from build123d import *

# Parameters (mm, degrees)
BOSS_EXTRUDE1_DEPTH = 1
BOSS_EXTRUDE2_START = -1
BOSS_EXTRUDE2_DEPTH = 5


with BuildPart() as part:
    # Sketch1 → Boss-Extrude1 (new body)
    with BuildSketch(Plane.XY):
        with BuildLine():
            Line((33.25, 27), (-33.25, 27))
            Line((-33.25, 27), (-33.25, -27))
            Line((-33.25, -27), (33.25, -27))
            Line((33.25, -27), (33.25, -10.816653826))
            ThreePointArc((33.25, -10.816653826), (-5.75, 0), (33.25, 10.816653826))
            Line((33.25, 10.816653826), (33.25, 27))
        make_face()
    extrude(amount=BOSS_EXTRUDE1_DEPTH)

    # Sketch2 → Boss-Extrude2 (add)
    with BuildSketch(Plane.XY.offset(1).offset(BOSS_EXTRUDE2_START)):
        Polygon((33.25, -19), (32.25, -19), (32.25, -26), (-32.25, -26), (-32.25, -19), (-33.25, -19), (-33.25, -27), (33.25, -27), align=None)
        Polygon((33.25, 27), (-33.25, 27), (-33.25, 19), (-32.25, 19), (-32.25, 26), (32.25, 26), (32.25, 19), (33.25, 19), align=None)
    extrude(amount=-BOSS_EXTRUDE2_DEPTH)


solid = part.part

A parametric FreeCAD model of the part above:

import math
import FreeCAD as App
import Part
import Sketcher

V = App.Vector
Q = App.Units.Quantity

doc = App.newDocument("Part")
body = doc.addObject("PartDesign::Body", "Body")

# Sketch on XY plane
sketch1 = body.newObject("Sketcher::SketchObject", "Sketch")
sketch1.AttachmentSupport = (doc.getObject("XY_Plane"), [""])
sketch1.MapMode = "FlatFace"
sketch1.addGeometry([
    Part.LineSegment(V(33, 27, 0), V(-33, 27, 0)),  # 0
    Part.LineSegment(V(-33, 27, 0), V(-33, -27, 0)),  # 1
    Part.LineSegment(V(-33, -27, 0), V(33, -27, 0)),  # 2
    Part.LineSegment(V(33, -27, 0), V(33, -11, 0)),  # 3
    Part.ArcOfCircle(Part.Circle(V(15, 0, 0), V(0, 0, 1), 21), math.radians(31), math.radians(329)),  # 4
    Part.LineSegment(V(33, 11, 0), V(33, 27, 0)),  # 5
], False)
sketch1.addConstraint([
    Sketcher.Constraint("Coincident", 0, 2, 1, 1),
    Sketcher.Constraint("Coincident", 1, 2, 2, 1),
    Sketcher.Constraint("Coincident", 2, 2, 3, 1),
    Sketcher.Constraint("Coincident", 3, 2, 4, 2),
    Sketcher.Constraint("Coincident", 4, 1, 5, 1),
    Sketcher.Constraint("Coincident", 5, 2, 0, 1),
    Sketcher.Constraint("Horizontal", 0),
    Sketcher.Constraint("Vertical", 1),
    Sketcher.Constraint("Horizontal", 2),
    Sketcher.Constraint("Vertical", 3),
    Sketcher.Constraint("Vertical", 5),
    Sketcher.Constraint("Symmetric", 0, 2, 2, 2, -1, 1),
    Sketcher.Constraint("Symmetric", 3, 2, 4, 1, -1),
    Sketcher.Constraint("Radius", 4, Q("21 mm")),
    Sketcher.Constraint("DistanceY", 1, 2, 1, 1, Q("54 mm")),
    Sketcher.Constraint("DistanceX", 0, 2, 0, 1, Q("66.5 mm")),
    Sketcher.Constraint("DistanceX", 4, 3, 2, 2, Q("18 mm")),
])
pad1 = body.newObject("PartDesign::Pad", "Pad")
pad1.Profile = sketch1
pad1.Length = 1

# Sketch on XY plane
sketch2 = body.newObject("Sketcher::SketchObject", "Sketch001")
sketch2.AttachmentSupport = (doc.getObject("XY_Plane"), [""])
sketch2.MapMode = "FlatFace"
sketch2.addGeometry([
    Part.LineSegment(V(33.2, -19, 0), V(32.2, -19, 0)),  # 0
    Part.LineSegment(V(32.2, -19, 0), V(32.2, -26, 0)),  # 1
    Part.LineSegment(V(32.2, -26, 0), V(-32.2, -26, 0)),  # 2
    Part.LineSegment(V(-32.2, -26, 0), V(-32.2, -19, 0)),  # 3
    Part.LineSegment(V(-32.2, -19, 0), V(-33.2, -19, 0)),  # 4
    Part.LineSegment(V(-33.2, -19, 0), V(-33.2, -27, 0)),  # 5
    Part.LineSegment(V(-33.2, -27, 0), V(33.2, -27, 0)),  # 6
    Part.LineSegment(V(33.2, -27, 0), V(33.2, -19, 0)),  # 7
    Part.LineSegment(V(33.2, 27, 0), V(-33.2, 27, 0)),  # 8
    Part.LineSegment(V(-33.2, 27, 0), V(-33.2, 19, 0)),  # 9
    Part.LineSegment(V(-33.2, 19, 0), V(-32.2, 19, 0)),  # 10
    Part.LineSegment(V(-32.2, 19, 0), V(-32.2, 26, 0)),  # 11
    Part.LineSegment(V(-32.2, 26, 0), V(32.2, 26, 0)),  # 12
    Part.LineSegment(V(32.2, 26, 0), V(32.2, 19, 0)),  # 13
    Part.LineSegment(V(32.2, 19, 0), V(33.2, 19, 0)),  # 14
    Part.LineSegment(V(33.2, 19, 0), V(33.2, 27, 0)),  # 15
], False)
sketch2.addConstraint([
    Sketcher.Constraint("Coincident", 0, 2, 1, 1),
    Sketcher.Constraint("Coincident", 1, 2, 2, 1),
    Sketcher.Constraint("Coincident", 2, 2, 3, 1),
    Sketcher.Constraint("Coincident", 3, 2, 4, 1),
    Sketcher.Constraint("Coincident", 4, 2, 5, 1),
    Sketcher.Constraint("Coincident", 5, 2, 6, 1),
    Sketcher.Constraint("Coincident", 6, 2, 7, 1),
    Sketcher.Constraint("Coincident", 7, 2, 0, 1),
    Sketcher.Constraint("Coincident", 8, 2, 9, 1),
    Sketcher.Constraint("Coincident", 9, 2, 10, 1),
    Sketcher.Constraint("Coincident", 10, 2, 11, 1),
    Sketcher.Constraint("Coincident", 11, 2, 12, 1),
    Sketcher.Constraint("Coincident", 12, 2, 13, 1),
    Sketcher.Constraint("Coincident", 13, 2, 14, 1),
    Sketcher.Constraint("Coincident", 14, 2, 15, 1),
    Sketcher.Constraint("Coincident", 15, 2, 8, 1),
    Sketcher.Constraint("Horizontal", 0),
    Sketcher.Constraint("Vertical", 1),
    Sketcher.Constraint("Horizontal", 2),
    Sketcher.Constraint("Vertical", 3),
    Sketcher.Constraint("Horizontal", 4),
    Sketcher.Constraint("Vertical", 5),
    Sketcher.Constraint("Horizontal", 6),
    Sketcher.Constraint("Vertical", 7),
    Sketcher.Constraint("Horizontal", 8),
    Sketcher.Constraint("Vertical", 9),
    Sketcher.Constraint("Horizontal", 10),
    Sketcher.Constraint("Vertical", 11),
    Sketcher.Constraint("Horizontal", 12),
    Sketcher.Constraint("Vertical", 13),
    Sketcher.Constraint("Horizontal", 14),
    Sketcher.Constraint("Vertical", 15),
    Sketcher.Constraint("Symmetric", 6, 2, 8, 2, -1, 1),
    Sketcher.Constraint("Symmetric", 0, 2, 10, 2, -1, 1),
    Sketcher.Constraint("Symmetric", 2, 2, 12, 2, -1, 1),
    Sketcher.Constraint("Symmetric", 4, 2, 14, 2, -1, 1),
    Sketcher.Constraint("Symmetric", 0, 2, 3, 2, -2),
    Sketcher.Constraint("Vertical", 5, 2, 8, 2),
    Sketcher.Constraint("DistanceX", 0, 2, 0, 1, Q("1 mm")),
    Sketcher.Constraint("DistanceY", 1, 2, 1, 1, Q("7 mm")),
    Sketcher.Constraint("DistanceY", 5, 2, 5, 1, Q("8 mm")),
    Sketcher.Constraint("DistanceX", 2, 2, 2, 1, Q("64.5 mm")),
    Sketcher.Constraint("DistanceY", 0, 2, -1, 1, Q("19 mm")),
])
pad2 = body.newObject("PartDesign::Pad", "Pad001")
pad2.Profile = sketch2
pad2.Length = 5
pad2.Reversed = True

doc.recompute()
